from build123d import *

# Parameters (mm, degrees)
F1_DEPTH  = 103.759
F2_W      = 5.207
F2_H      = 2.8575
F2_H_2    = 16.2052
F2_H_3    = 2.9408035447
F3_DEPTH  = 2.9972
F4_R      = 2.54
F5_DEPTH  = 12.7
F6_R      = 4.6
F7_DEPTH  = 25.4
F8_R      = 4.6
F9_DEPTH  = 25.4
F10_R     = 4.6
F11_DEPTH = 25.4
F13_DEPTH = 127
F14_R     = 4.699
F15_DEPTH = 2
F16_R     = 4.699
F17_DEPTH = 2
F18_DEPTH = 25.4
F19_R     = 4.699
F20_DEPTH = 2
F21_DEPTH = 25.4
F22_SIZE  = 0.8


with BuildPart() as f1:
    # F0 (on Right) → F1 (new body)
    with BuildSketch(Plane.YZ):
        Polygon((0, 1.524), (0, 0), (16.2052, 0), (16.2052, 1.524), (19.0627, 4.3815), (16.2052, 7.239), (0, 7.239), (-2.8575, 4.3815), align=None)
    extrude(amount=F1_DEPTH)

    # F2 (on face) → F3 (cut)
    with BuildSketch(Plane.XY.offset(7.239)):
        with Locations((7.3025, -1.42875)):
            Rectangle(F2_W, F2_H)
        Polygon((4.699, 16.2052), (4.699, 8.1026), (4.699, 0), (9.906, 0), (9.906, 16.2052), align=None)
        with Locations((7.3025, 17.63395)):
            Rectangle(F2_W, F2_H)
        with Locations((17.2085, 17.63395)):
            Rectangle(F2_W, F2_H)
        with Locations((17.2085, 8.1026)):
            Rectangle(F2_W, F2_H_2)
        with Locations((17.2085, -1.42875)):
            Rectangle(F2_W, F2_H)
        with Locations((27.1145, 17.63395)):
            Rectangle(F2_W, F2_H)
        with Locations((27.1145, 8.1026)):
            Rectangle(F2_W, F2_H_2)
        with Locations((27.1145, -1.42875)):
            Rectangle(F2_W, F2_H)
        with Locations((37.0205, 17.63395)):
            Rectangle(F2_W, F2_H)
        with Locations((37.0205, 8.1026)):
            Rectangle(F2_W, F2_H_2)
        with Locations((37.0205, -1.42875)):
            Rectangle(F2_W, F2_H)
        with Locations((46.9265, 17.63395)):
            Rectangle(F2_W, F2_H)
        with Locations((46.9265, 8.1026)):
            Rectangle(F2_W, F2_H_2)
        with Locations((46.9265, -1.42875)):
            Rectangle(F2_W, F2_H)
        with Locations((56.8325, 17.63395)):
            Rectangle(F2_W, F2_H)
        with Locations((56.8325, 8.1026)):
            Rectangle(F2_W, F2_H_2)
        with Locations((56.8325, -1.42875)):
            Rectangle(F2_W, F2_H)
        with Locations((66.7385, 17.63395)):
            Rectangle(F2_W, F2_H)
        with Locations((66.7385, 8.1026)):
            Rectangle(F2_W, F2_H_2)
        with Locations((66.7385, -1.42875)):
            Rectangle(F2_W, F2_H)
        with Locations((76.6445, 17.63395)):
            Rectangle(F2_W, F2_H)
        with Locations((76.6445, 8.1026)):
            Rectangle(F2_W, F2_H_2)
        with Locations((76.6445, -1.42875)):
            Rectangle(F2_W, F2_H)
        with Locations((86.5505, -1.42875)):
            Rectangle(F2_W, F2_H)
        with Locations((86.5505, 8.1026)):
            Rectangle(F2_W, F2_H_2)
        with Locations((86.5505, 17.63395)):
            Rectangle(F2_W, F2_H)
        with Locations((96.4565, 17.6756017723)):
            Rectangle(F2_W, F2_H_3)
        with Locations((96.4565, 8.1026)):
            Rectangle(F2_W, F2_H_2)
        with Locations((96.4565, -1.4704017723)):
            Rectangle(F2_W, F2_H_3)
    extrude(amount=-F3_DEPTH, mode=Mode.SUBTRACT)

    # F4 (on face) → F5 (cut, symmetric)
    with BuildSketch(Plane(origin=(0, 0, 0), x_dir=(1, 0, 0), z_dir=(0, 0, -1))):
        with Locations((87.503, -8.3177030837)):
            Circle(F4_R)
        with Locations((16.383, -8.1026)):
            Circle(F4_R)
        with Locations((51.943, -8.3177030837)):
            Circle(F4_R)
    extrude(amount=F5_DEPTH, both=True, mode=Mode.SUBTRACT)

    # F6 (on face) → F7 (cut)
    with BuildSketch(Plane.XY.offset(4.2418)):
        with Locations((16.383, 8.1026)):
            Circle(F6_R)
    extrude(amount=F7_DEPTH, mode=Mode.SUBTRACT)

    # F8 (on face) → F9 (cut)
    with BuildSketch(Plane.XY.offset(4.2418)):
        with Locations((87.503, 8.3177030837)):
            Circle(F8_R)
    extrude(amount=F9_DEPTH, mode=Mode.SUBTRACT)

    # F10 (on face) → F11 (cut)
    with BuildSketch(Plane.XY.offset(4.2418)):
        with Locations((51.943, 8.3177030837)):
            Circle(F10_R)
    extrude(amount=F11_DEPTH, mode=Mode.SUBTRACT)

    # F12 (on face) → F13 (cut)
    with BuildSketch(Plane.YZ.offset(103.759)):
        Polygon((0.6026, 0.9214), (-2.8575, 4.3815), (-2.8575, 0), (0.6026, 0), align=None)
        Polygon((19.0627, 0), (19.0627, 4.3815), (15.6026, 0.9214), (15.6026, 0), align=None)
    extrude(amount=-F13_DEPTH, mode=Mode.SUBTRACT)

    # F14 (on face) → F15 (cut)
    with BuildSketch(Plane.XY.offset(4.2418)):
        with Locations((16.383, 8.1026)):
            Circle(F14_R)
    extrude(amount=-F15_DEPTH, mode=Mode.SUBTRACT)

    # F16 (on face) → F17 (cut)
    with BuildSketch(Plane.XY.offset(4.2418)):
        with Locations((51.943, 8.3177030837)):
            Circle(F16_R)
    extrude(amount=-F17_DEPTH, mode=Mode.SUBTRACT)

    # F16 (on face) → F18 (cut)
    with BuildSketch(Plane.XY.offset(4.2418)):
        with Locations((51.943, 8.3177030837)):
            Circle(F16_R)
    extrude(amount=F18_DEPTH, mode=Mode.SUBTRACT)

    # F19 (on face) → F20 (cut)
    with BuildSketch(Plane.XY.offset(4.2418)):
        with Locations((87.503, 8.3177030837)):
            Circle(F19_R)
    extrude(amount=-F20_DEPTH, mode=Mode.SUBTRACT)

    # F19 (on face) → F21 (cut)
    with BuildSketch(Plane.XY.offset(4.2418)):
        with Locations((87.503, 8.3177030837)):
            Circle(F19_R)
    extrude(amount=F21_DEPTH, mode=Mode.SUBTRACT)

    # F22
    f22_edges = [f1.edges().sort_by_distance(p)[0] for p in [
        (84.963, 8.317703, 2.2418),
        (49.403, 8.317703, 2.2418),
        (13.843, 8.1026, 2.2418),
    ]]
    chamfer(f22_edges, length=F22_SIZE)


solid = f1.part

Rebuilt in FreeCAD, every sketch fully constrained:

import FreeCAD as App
import Part
import Sketcher

V = App.Vector
Q = App.Units.Quantity


def edges_at(feature, points):
    """Names of the edges that pass closest to the given points."""
    edges = feature.Shape.Edges
    near = lambda p: min(range(len(edges)), key=lambda i: edges[i].distToShape(Part.Vertex(*p))[0])
    return sorted({f"Edge{near(p) + 1}" for p in points})


def add_polygon(sketch, points):
    """Adds a closed chain of lines whose ends are joined by coincident constraints."""
    first, n = sketch.GeometryCount, len(points)
    for a, b in zip(points, points[1:] + points[:1]):
        sketch.addGeometry(Part.LineSegment(App.Vector(*a, 0), App.Vector(*b, 0)), False)
    for i in range(n):
        sketch.addConstraint(Sketcher.Constraint("Coincident", first + i, 2, first + (i + 1) % n, 1))

doc = App.newDocument("Part")
body = doc.addObject("PartDesign::Body", "Body")

# Sketch on YZ plane
sketch1 = body.newObject("Sketcher::SketchObject", "Sketch")
sketch1.AttachmentSupport = (doc.getObject("YZ_Plane"), [""])
sketch1.MapMode = "FlatFace"
add_polygon(sketch1, [(0, 1.5), (0, 0), (16.2, 0), (16.2, 1.5), (19.1, 4.4), (16.2, 7.2), (0, 7.2), (-2.9, 4.4)])  # lines 0-7
sketch1.addConstraint([
    Sketcher.Constraint("Vertical", 0),
    Sketcher.Constraint("Horizontal", 1),
    Sketcher.Constraint("Vertical", 2),
    Sketcher.Constraint("Horizontal", 5),
    Sketcher.Constraint("Coincident", 0, 2, -1, 1),
    Sketcher.Constraint("PointOnObject", 5, 2, -2),
    Sketcher.Constraint("Perpendicular", 3, 4),
    Sketcher.Constraint("Perpendicular", 4, 6),
    Sketcher.Constraint("Perpendicular", 6, 7),
    Sketcher.Constraint("Horizontal", 3, 2, 6, 2),
    Sketcher.Constraint("Horizontal", 2, 2, 7, 2),
    Sketcher.Constraint("Vertical", 2, 2, 4, 2),
    Sketcher.Constraint("DistanceY", 0, 2, 0, 1, Q("0.06 in")),
    Sketcher.Constraint("DistanceX", 1, 1, 1, 2, Q("0.638 in")),
    Sketcher.Constraint("DistanceY", -1, 1, 4, 2, Q("0.285 in")),
])
pad1 = body.newObject("PartDesign::Pad", "Pad")
pad1.Profile = sketch1
pad1.Length = Q("4.085 in")

# Sketch on XY plane
sketch2 = body.newObject("Sketcher::SketchObject", "Sketch001")
sketch2.AttachmentSupport = (doc.getObject("XY_Plane"), [""])
sketch2.MapMode = "FlatFace"
sketch2.AttachmentOffset = App.Placement(V(0, 0, 0.285 * 25.4), App.Rotation())
add_polygon(sketch2, [(5, -3), (10, -3), (10, 19), (5, 19)])  # lines 0-3
add_polygon(sketch2, [(15, 19), (15, -3), (20, -3), (20, 19)])  # lines 4-7
add_polygon(sketch2, [(25, 19), (25, -3), (30, -3), (30, 19)])  # lines 8-11
add_polygon(sketch2, [(34, 19), (34, -3), (40, -3), (40, 19)])  # lines 12-15
add_polygon(sketch2, [(44, 19), (44, -3), (50, -3), (50, 19)])  # lines 16-19
add_polygon(sketch2, [(54, 19), (54, -3), (59, -3), (59, 19)])  # lines 20-23
add_polygon(sketch2, [(64, 19), (64, -3), (69, -3), (69, 19)])  # lines 24-27
add_polygon(sketch2, [(74, 19), (74, -3), (79, -3), (79, 19)])  # lines 28-31
add_polygon(sketch2, [(84, -3), (89, -3), (89, 19), (84, 19)])  # lines 32-35
add_polygon(sketch2, [(94, 19), (94, -3), (99, -3), (99, 19)])  # lines 36-39
sketch2.addConstraint([
    Sketcher.Constraint("Horizontal", 0),
    Sketcher.Constraint("Vertical", 1),
    Sketcher.Constraint("Horizontal", 2),
    Sketcher.Constraint("Vertical", 3),
    Sketcher.Constraint("Vertical", 4),
    Sketcher.Constraint("Horizontal", 5),
    Sketcher.Constraint("Vertical", 6),
    Sketcher.Constraint("Horizontal", 7),
    Sketcher.Constraint("Vertical", 8),
    Sketcher.Constraint("Horizontal", 9),
    Sketcher.Constraint("Vertical", 10),
    Sketcher.Constraint("Horizontal", 11),
    Sketcher.Constraint("Vertical", 12),
    Sketcher.Constraint("Horizontal", 13),
    Sketcher.Constraint("Vertical", 14),
    Sketcher.Constraint("Horizontal", 15),
    Sketcher.Constraint("Vertical", 16),
    Sketcher.Constraint("Horizontal", 17),
    Sketcher.Constraint("Vertical", 18),
    Sketcher.Constraint("Horizontal", 19),
    Sketcher.Constraint("Vertical", 20),
    Sketcher.Constraint("Horizontal", 21),
    Sketcher.Constraint("Vertical", 22),
    Sketcher.Constraint("Horizontal", 23),
    Sketcher.Constraint("Vertical", 24),
    Sketcher.Constraint("Horizontal", 25),
    Sketcher.Constraint("Vertical", 26),
    Sketcher.Constraint("Horizontal", 27),
    Sketcher.Constraint("Vertical", 28),
    Sketcher.Constraint("Horizontal", 29),
    Sketcher.Constraint("Vertical", 30),
    Sketcher.Constraint("Horizontal", 31),
    Sketcher.Constraint("Horizontal", 32),
    Sketcher.Constraint("Vertical", 33),
    Sketcher.Constraint("Horizontal", 34),
    Sketcher.Constraint("Vertical", 35),
    Sketcher.Constraint("Vertical", 36),
    Sketcher.Constraint("Horizontal", 37),
    Sketcher.Constraint("Vertical", 38),
    Sketcher.Constraint("Horizontal", 39),
    Sketcher.Constraint("Horizontal", 3, 2, 4, 2),
    Sketcher.Constraint("Horizontal", 2, 2, 6, 2),
    Sketcher.Constraint("Horizontal", 5, 2, 8, 2),
    Sketcher.Constraint("Horizontal", 7, 2, 10, 2),
    Sketcher.Constraint("Horizontal", 9, 2, 12, 2),
    Sketcher.Constraint("Horizontal", 11, 2, 14, 2),
    Sketcher.Constraint("Horizontal", 13, 2, 16, 2),
    Sketcher.Constraint("Horizontal", 15, 2, 18, 2),
    Sketcher.Constraint("Horizontal", 17, 2, 20, 2),
    Sketcher.Constraint("Horizontal", 19, 2, 22, 2),
    Sketcher.Constraint("Horizontal", 21, 2, 24, 2),
    Sketcher.Constraint("Horizontal", 23, 2, 26, 2),
    Sketcher.Constraint("Horizontal", 25, 2, 28, 2),
    Sketcher.Constraint("Horizontal", 27, 2, 30, 2),
    Sketcher.Constraint("Horizontal", 29, 2, 32, 2),
    Sketcher.Constraint("Horizontal", 31, 2, 33, 2),
    Sketcher.Constraint("Equal", 2, 5),
    Sketcher.Constraint("Equal", 7, 9),
    Sketcher.Constraint("Equal", 11, 13),
    Sketcher.Constraint("Equal", 15, 17),
    Sketcher.Constraint("Equal", 19, 21),
    Sketcher.Constraint("Equal", 23, 25),
    Sketcher.Constraint("Equal", 27, 29),
    Sketcher.Constraint("Equal", 31, 32),
    Sketcher.Constraint("Equal", 34, 37),
    Sketcher.Constraint("DistanceX", -1, 1, 37, 2, Q("3.9 in")),
    Sketcher.Constraint("DistanceX", 0, 1, 0, 2, Q("0.205 in")),
    Sketcher.Constraint("DistanceY", 1, 1, 1, 2, Q("0.863 in")),
    Sketcher.Constraint("DistanceX", -1, 1, 0, 2, Q("0.39 in")),
    Sketcher.Constraint("DistanceX", -1, 1, 5, 2, Q("0.78 in")),
    Sketcher.Constraint("DistanceX", -1, 1, 9, 2, Q("1.17 in")),
    Sketcher.Constraint("DistanceX", -1, 1, 13, 2, Q("1.56 in")),
    Sketcher.Constraint("DistanceX", -1, 1, 17, 2, Q("1.95 in")),
    Sketcher.Constraint("DistanceX", -1, 1, 21, 2, Q("2.34 in")),
    Sketcher.Constraint("DistanceX", -1, 1, 25, 2, Q("2.73 in")),
    Sketcher.Constraint("DistanceX", -1, 1, 29, 2, Q("3.12 in")),
    Sketcher.Constraint("DistanceX", -1, 1, 32, 2, Q("3.51 in")),
    Sketcher.Constraint("DistanceY", 0, 2, -1, 1, Q("0.1125 in")),
    Sketcher.Constraint("DistanceY", 36, 2, 36, 1, 22.086807),
    Sketcher.Constraint("DistanceY", 36, 2, -1, 1, 2.940804),
])
pocket1 = body.newObject("PartDesign::Pocket", "Pocket")
pocket1.Profile = sketch2
pocket1.Length = Q("0.118 in")

# Sketch on XY plane
sketch3 = body.newObject("Sketcher::SketchObject", "Sketch002")
sketch3.AttachmentSupport = (doc.getObject("XY_Plane"), [""])
sketch3.MapMode = "FlatFace"
sketch3.addGeometry([
    Part.Circle(V(87.5, 8.3, 0), V(0, 0, 1), 2.5),
    Part.Circle(V(16.4, 8.1, 0), V(0, 0, 1), 2.5),
    Part.Circle(V(51.9, 8.3, 0), V(0, 0, 1), 2.5),
], False)
sketch3.addConstraint([
    Sketcher.Constraint("Equal", 0, 1),
    Sketcher.Constraint("Equal", 1, 2),
    Sketcher.Constraint("Horizontal", 0, 3, 2, 3),
    Sketcher.Constraint("Diameter", 0, Q("0.2 in")),
    Sketcher.Constraint("DistanceX", 1, 3, 0, 3, Q("2.8 in")),
    Sketcher.Constraint("DistanceX", 2, 3, 0, 3, Q("1.4 in")),
    Sketcher.Constraint("DistanceX", -1, 1, 0, 3, Q("3.445 in")),
    Sketcher.Constraint("DistanceY", -1, 1, 1, 3, Q("0.319 in")),
    Sketcher.Constraint("DistanceY", -1, 1, 0, 3, 8.317703),
])
pocket2 = body.newObject("PartDesign::Pocket", "Pocket001")
pocket2.Profile = sketch3
pocket2.Length = Q("1 in")
pocket2.Midplane = True

# Sketch on XY plane
sketch4 = body.newObject("Sketcher::SketchObject", "Sketch003")
sketch4.AttachmentSupport = (doc.getObject("XY_Plane"), [""])
sketch4.MapMode = "FlatFace"
sketch4.AttachmentOffset = App.Placement(V(0, 0, 0.167 * 25.4), App.Rotation())
sketch4.addGeometry(Part.Circle(V(16.4, 8.1, 0), V(0, 0, 1), 4.6), False)
sketch4.addConstraint([
    Sketcher.Constraint("Diameter", 0, 9.2),
    Sketcher.Constraint("DistanceX", -1, 1, 0, 3, Q("0.645 in")),
    Sketcher.Constraint("DistanceY", -1, 1, 0, 3, Q("0.319 in")),
])
pocket3 = body.newObject("PartDesign::Pocket", "Pocket002")
pocket3.Profile = sketch4
pocket3.Length = Q("1 in")
pocket3.Reversed = True

# Sketch on XY plane
sketch5 = body.newObject("Sketcher::SketchObject", "Sketch004")
sketch5.AttachmentSupport = (doc.getObject("XY_Plane"), [""])
sketch5.MapMode = "FlatFace"
sketch5.AttachmentOffset = App.Placement(V(0, 0, 0.167 * 25.4), App.Rotation())
sketch5.addGeometry(Part.Circle(V(87.5, 8.3, 0), V(0, 0, 1), 4.6), False)
sketch5.addConstraint([
    Sketcher.Constraint("Diameter", 0, 9.2),
    Sketcher.Constraint("DistanceX", -1, 1, 0, 3, Q("3.445 in")),
    Sketcher.Constraint("DistanceY", -1, 1, 0, 3, 8.317703),
])
pocket4 = body.newObject("PartDesign::Pocket", "Pocket003")
pocket4.Profile = sketch5
pocket4.Length = Q("1 in")
pocket4.Reversed = True

# Sketch on XY plane
sketch6 = body.newObject("Sketcher::SketchObject", "Sketch005")
sketch6.AttachmentSupport = (doc.getObject("XY_Plane"), [""])
sketch6.MapMode = "FlatFace"
sketch6.AttachmentOffset = App.Placement(V(0, 0, 0.167 * 25.4), App.Rotation())
sketch6.addGeometry(Part.Circle(V(51.9, 8.3, 0), V(0, 0, 1), 4.6), False)
sketch6.addConstraint([
    Sketcher.Constraint("Diameter", 0, 9.2),
    Sketcher.Constraint("DistanceX", -1, 1, 0, 3, Q("2.045 in")),
    Sketcher.Constraint("DistanceY", -1, 1, 0, 3, 8.317703),
])
pocket5 = body.newObject("PartDesign::Pocket", "Pocket004")
pocket5.Profile = sketch6
pocket5.Length = Q("1 in")
pocket5.Reversed = True

# Sketch on YZ plane
sketch7 = body.newObject("Sketcher::SketchObject", "Sketch006")
sketch7.AttachmentSupport = (doc.getObject("YZ_Plane"), [""])
sketch7.MapMode = "FlatFace"
sketch7.AttachmentOffset = App.Placement(V(0, 0, 4.085 * 25.4), App.Rotation())
add_polygon(sketch7, [(0.6, 0.9), (-2.9, 4.4), (-2.9, 0), (0.6, 0)])  # lines 0-3
add_polygon(sketch7, [(19.1, 0), (19.1, 4.4), (15.6, 0.9), (15.6, 0)])  # lines 4-7
sketch7.addConstraint([
    Sketcher.Constraint("Vertical", 1),
    Sketcher.Constraint("Horizontal", 2),
    Sketcher.Constraint("Vertical", 3),
    Sketcher.Constraint("Vertical", 4),
    Sketcher.Constraint("Vertical", 6),
    Sketcher.Constraint("Horizontal", 7),
    Sketcher.Constraint("PointOnObject", 1, 2, -1),
    Sketcher.Constraint("PointOnObject", 6, 2, -1),
    Sketcher.Constraint("Perpendicular", 0, 5),
    Sketcher.Constraint("Horizontal", 0, 2, 4, 2),
    Sketcher.Constraint("Horizontal", 3, 2, 5, 2),
    Sketcher.Constraint("Equal", 2, 7),
    Sketcher.Constraint("DistanceY", 1, 2, 1, 1, Q("0.1725 in")),
    Sketcher.Constraint("DistanceX", 0, 2, 4, 2, Q("0.863 in")),
    Sketcher.Constraint("DistanceX", 2, 1, 2, 2, 3.4601),
    Sketcher.Constraint("DistanceX", 0, 2, -1, 1, Q("0.1125 in")),
])
pocket6 = body.newObject("PartDesign::Pocket", "Pocket005")
pocket6.Profile = sketch7
pocket6.Length = Q("5 in")

# Sketch on XY plane
sketch8 = body.newObject("Sketcher::SketchObject", "Sketch007")
sketch8.AttachmentSupport = (doc.getObject("XY_Plane"), [""])
sketch8.MapMode = "FlatFace"
sketch8.AttachmentOffset = App.Placement(V(0, 0, 0.167 * 25.4), App.Rotation())
sketch8.addGeometry(Part.Circle(V(16.4, 8.1, 0), V(0, 0, 1), 4.7), False)
sketch8.addConstraint([
    Sketcher.Constraint("Diameter", 0, Q("0.37 in")),
    Sketcher.Constraint("DistanceX", -1, 1, 0, 3, Q("0.645 in")),
    Sketcher.Constraint("DistanceY", -1, 1, 0, 3, Q("0.319 in")),
])
pocket7 = body.newObject("PartDesign::Pocket", "Pocket006")
pocket7.Profile = sketch8
pocket7.Length = 2

# Sketch on XY plane
sketch9 = body.newObject("Sketcher::SketchObject", "Sketch008")
sketch9.AttachmentSupport = (doc.getObject("XY_Plane"), [""])
sketch9.MapMode = "FlatFace"
sketch9.AttachmentOffset = App.Placement(V(0, 0, 0.167 * 25.4), App.Rotation())
sketch9.addGeometry(Part.Circle(V(51.9, 8.3, 0), V(0, 0, 1), 4.7), False)
sketch9.addConstraint([
    Sketcher.Constraint("Diameter", 0, Q("0.37 in")),
    Sketcher.Constraint("DistanceX", -1, 1, 0, 3, Q("2.045 in")),
    Sketcher.Constraint("DistanceY", -1, 1, 0, 3, 8.317703),
])
pocket8 = body.newObject("PartDesign::Pocket", "Pocket007")
pocket8.Profile = sketch9
pocket8.Length = 2

# Sketch on XY plane
sketch10 = body.newObject("Sketcher::SketchObject", "Sketch009")
sketch10.AttachmentSupport = (doc.getObject("XY_Plane"), [""])
sketch10.MapMode = "FlatFace"
sketch10.AttachmentOffset = App.Placement(V(0, 0, 0.167 * 25.4), App.Rotation())
sketch10.addGeometry(Part.Circle(V(51.9, 8.3, 0), V(0, 0, 1), 4.7), False)
sketch10.addConstraint([
    Sketcher.Constraint("Diameter", 0, Q("0.37 in")),
    Sketcher.Constraint("DistanceX", -1, 1, 0, 3, Q("2.045 in")),
    Sketcher.Constraint("DistanceY", -1, 1, 0, 3, 8.317703),
])
pocket9 = body.newObject("PartDesign::Pocket", "Pocket008")
pocket9.Profile = sketch10
pocket9.Length = Q("1 in")
pocket9.Reversed = True

# Sketch on XY plane
sketch11 = body.newObject("Sketcher::SketchObject", "Sketch010")
sketch11.AttachmentSupport = (doc.getObject("XY_Plane"), [""])
sketch11.MapMode = "FlatFace"
sketch11.AttachmentOffset = App.Placement(V(0, 0, 0.167 * 25.4), App.Rotation())
sketch11.addGeometry(Part.Circle(V(87.5, 8.3, 0), V(0, 0, 1), 4.7), False)
sketch11.addConstraint([
    Sketcher.Constraint("Diameter", 0, Q("0.37 in")),
    Sketcher.Constraint("DistanceX", -1, 1, 0, 3, Q("3.445 in")),
    Sketcher.Constraint("DistanceY", -1, 1, 0, 3, 8.317703),
])
pocket10 = body.newObject("PartDesign::Pocket", "Pocket009")
pocket10.Profile = sketch11
pocket10.Length = 2

# Sketch on XY plane
sketch12 = body.newObject("Sketcher::SketchObject", "Sketch011")
sketch12.AttachmentSupport = (doc.getObject("XY_Plane"), [""])
sketch12.MapMode = "FlatFace"
sketch12.AttachmentOffset = App.Placement(V(0, 0, 0.167 * 25.4), App.Rotation())
sketch12.addGeometry(Part.Circle(V(87.5, 8.3, 0), V(0, 0, 1), 4.7), False)
sketch12.addConstraint([
    Sketcher.Constraint("Diameter", 0, Q("0.37 in")),
    Sketcher.Constraint("DistanceX", -1, 1, 0, 3, Q("3.445 in")),
    Sketcher.Constraint("DistanceY", -1, 1, 0, 3, 8.317703),
])
pocket11 = body.newObject("PartDesign::Pocket", "Pocket010")
pocket11.Profile = sketch12
pocket11.Length = Q("1 in")
pocket11.Reversed = True
doc.recompute()

chamfer = body.newObject("PartDesign::Chamfer", "Chamfer")
chamfer.Base = (pocket11, edges_at(pocket11, [(84.963, 8.318, 2.242), (49.403, 8.318, 2.242), (13.843, 8.103, 2.242)]))
chamfer.Size = 0.8

doc.recompute()
